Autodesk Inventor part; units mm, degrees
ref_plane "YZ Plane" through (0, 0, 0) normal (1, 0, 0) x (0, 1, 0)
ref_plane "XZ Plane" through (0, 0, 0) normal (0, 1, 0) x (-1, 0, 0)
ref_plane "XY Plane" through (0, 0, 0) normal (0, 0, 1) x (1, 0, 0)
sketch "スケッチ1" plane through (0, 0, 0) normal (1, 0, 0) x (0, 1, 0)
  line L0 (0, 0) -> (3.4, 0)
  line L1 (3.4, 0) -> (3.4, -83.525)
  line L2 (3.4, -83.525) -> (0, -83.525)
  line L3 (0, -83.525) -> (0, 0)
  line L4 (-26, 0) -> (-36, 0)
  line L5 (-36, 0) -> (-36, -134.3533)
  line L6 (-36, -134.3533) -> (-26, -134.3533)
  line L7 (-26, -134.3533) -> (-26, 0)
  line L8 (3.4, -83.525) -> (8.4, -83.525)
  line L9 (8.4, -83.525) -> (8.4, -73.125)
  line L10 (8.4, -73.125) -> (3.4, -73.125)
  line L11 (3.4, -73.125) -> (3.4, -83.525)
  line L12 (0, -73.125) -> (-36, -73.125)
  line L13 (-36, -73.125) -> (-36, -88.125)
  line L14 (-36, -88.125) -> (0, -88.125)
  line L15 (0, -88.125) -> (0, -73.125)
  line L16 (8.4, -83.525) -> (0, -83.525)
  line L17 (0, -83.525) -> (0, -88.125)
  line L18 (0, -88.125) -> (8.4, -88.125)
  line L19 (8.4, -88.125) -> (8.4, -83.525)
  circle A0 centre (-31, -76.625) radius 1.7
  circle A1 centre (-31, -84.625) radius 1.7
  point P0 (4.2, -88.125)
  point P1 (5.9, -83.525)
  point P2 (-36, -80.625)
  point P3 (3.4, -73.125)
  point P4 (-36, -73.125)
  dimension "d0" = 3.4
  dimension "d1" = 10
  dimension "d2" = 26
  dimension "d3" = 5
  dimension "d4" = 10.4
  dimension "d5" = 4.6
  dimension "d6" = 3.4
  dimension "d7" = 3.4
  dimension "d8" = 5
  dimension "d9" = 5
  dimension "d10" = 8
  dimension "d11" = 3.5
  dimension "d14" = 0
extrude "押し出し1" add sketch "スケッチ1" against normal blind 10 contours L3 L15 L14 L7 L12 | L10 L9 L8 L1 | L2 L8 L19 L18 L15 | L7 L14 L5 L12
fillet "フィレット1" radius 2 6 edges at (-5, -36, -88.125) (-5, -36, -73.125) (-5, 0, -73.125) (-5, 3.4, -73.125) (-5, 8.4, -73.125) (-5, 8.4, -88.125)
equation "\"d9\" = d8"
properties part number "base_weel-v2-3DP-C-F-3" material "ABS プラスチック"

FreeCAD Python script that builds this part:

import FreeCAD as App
import Part
import Sketcher

V = App.Vector
Q = App.Units.Quantity


def edges_at(feature, points):
    """Names of the edges that pass closest to the given points."""
    edges = feature.Shape.Edges
    near = lambda p: min(range(len(edges)), key=lambda i: edges[i].distToShape(Part.Vertex(*p))[0])
    return sorted({f"Edge{near(p) + 1}" for p in points})


def add_polygon(sketch, points):
    """Adds a closed chain of lines whose ends are joined by coincident constraints."""
    first, n = sketch.GeometryCount, len(points)
    for a, b in zip(points, points[1:] + points[:1]):
        sketch.addGeometry(Part.LineSegment(App.Vector(*a, 0), App.Vector(*b, 0)), False)
    for i in range(n):
        sketch.addConstraint(Sketcher.Constraint("Coincident", first + i, 2, first + (i + 1) % n, 1))

doc = App.newDocument("Part")
body = doc.addObject("PartDesign::Body", "Body")

# Sketch on YZ plane
sketch1 = body.newObject("Sketcher::SketchObject", "Sketch")
sketch1.AttachmentSupport = (doc.getObject("YZ_Plane"), [""])
sketch1.MapMode = "FlatFace"
add_polygon(sketch1, [(0, -83.5), (0, -73.1), (-36, -73.1), (-36, -88.1), (8.4, -88.1), (8.4, -73.1), (3.4, -73.1), (3.4, -83.5)])  # lines 0-7
sketch1.addGeometry(Part.Circle(V(-31, -76.6, 0), V(0, 0, 1), 1.7), False)  # 8
sketch1.addGeometry(Part.Circle(V(-31, -84.6, 0), V(0, 0, 1), 1.7), False)  # 9
sketch1.addConstraint([
    Sketcher.Constraint("Vertical", 0),
    Sketcher.Constraint("Horizontal", 1),
    Sketcher.Constraint("Vertical", 2),
    Sketcher.Constraint("Horizontal", 3),
    Sketcher.Constraint("Vertical", 4),
    Sketcher.Constraint("Horizontal", 5),
    Sketcher.Constraint("Vertical", 6),
    Sketcher.Constraint("Horizontal", 7),
    Sketcher.Constraint("Equal", 8, 9),
    Sketcher.Constraint("PointOnObject", 0, 2, -2),
    Sketcher.Constraint("Horizontal", 1, 2, 4, 2),
    Sketcher.Constraint("Vertical", 8, 3, 9, 3),
    Sketcher.Constraint("Diameter", 8, Q("3.4 mm")),
    Sketcher.Constraint("DistanceX", 5, 2, 5, 1, Q("5 mm")),
    Sketcher.Constraint("DistanceX", 7, 2, 7, 1, Q("3.4 mm")),
    Sketcher.Constraint("DistanceY", 0, 1, 0, 2, Q("10.4 mm")),
    Sketcher.Constraint("DistanceY", 9, 3, 8, 3, Q("8 mm")),
    Sketcher.Constraint("DistanceX", 1, 2, 8, 3, Q("5 mm")),
    Sketcher.Constraint("DistanceY", 8, 3, 0, 2, Q("3.5 mm")),
    Sketcher.Constraint("DistanceY", 2, 2, 9, 3, Q("3.5 mm")),
    Sketcher.Constraint("DistanceX", 1, 2, 1, 1, Q("36 mm")),
    Sketcher.Constraint("DistanceY", 8, 3, -1, 1, Q("76.625 mm")),
])
pad1 = body.newObject("PartDesign::Pad", "Pad")
pad1.Profile = sketch1
pad1.Length = 10
pad1.Reversed = True
doc.recompute()

fillet = body.newObject("PartDesign::Fillet", "Fillet")
fillet.Base = (pad1, edges_at(pad1, [
    (-5, -36, -88.125),
    (-5, -36, -73.125),
    (-5, 0, -73.125),
    (-5, 3.4, -73.125),
    (-5, 8.4, -73.125),
    (-5, 8.4, -88.125),
]))
fillet.Radius = 2

doc.recompute()
